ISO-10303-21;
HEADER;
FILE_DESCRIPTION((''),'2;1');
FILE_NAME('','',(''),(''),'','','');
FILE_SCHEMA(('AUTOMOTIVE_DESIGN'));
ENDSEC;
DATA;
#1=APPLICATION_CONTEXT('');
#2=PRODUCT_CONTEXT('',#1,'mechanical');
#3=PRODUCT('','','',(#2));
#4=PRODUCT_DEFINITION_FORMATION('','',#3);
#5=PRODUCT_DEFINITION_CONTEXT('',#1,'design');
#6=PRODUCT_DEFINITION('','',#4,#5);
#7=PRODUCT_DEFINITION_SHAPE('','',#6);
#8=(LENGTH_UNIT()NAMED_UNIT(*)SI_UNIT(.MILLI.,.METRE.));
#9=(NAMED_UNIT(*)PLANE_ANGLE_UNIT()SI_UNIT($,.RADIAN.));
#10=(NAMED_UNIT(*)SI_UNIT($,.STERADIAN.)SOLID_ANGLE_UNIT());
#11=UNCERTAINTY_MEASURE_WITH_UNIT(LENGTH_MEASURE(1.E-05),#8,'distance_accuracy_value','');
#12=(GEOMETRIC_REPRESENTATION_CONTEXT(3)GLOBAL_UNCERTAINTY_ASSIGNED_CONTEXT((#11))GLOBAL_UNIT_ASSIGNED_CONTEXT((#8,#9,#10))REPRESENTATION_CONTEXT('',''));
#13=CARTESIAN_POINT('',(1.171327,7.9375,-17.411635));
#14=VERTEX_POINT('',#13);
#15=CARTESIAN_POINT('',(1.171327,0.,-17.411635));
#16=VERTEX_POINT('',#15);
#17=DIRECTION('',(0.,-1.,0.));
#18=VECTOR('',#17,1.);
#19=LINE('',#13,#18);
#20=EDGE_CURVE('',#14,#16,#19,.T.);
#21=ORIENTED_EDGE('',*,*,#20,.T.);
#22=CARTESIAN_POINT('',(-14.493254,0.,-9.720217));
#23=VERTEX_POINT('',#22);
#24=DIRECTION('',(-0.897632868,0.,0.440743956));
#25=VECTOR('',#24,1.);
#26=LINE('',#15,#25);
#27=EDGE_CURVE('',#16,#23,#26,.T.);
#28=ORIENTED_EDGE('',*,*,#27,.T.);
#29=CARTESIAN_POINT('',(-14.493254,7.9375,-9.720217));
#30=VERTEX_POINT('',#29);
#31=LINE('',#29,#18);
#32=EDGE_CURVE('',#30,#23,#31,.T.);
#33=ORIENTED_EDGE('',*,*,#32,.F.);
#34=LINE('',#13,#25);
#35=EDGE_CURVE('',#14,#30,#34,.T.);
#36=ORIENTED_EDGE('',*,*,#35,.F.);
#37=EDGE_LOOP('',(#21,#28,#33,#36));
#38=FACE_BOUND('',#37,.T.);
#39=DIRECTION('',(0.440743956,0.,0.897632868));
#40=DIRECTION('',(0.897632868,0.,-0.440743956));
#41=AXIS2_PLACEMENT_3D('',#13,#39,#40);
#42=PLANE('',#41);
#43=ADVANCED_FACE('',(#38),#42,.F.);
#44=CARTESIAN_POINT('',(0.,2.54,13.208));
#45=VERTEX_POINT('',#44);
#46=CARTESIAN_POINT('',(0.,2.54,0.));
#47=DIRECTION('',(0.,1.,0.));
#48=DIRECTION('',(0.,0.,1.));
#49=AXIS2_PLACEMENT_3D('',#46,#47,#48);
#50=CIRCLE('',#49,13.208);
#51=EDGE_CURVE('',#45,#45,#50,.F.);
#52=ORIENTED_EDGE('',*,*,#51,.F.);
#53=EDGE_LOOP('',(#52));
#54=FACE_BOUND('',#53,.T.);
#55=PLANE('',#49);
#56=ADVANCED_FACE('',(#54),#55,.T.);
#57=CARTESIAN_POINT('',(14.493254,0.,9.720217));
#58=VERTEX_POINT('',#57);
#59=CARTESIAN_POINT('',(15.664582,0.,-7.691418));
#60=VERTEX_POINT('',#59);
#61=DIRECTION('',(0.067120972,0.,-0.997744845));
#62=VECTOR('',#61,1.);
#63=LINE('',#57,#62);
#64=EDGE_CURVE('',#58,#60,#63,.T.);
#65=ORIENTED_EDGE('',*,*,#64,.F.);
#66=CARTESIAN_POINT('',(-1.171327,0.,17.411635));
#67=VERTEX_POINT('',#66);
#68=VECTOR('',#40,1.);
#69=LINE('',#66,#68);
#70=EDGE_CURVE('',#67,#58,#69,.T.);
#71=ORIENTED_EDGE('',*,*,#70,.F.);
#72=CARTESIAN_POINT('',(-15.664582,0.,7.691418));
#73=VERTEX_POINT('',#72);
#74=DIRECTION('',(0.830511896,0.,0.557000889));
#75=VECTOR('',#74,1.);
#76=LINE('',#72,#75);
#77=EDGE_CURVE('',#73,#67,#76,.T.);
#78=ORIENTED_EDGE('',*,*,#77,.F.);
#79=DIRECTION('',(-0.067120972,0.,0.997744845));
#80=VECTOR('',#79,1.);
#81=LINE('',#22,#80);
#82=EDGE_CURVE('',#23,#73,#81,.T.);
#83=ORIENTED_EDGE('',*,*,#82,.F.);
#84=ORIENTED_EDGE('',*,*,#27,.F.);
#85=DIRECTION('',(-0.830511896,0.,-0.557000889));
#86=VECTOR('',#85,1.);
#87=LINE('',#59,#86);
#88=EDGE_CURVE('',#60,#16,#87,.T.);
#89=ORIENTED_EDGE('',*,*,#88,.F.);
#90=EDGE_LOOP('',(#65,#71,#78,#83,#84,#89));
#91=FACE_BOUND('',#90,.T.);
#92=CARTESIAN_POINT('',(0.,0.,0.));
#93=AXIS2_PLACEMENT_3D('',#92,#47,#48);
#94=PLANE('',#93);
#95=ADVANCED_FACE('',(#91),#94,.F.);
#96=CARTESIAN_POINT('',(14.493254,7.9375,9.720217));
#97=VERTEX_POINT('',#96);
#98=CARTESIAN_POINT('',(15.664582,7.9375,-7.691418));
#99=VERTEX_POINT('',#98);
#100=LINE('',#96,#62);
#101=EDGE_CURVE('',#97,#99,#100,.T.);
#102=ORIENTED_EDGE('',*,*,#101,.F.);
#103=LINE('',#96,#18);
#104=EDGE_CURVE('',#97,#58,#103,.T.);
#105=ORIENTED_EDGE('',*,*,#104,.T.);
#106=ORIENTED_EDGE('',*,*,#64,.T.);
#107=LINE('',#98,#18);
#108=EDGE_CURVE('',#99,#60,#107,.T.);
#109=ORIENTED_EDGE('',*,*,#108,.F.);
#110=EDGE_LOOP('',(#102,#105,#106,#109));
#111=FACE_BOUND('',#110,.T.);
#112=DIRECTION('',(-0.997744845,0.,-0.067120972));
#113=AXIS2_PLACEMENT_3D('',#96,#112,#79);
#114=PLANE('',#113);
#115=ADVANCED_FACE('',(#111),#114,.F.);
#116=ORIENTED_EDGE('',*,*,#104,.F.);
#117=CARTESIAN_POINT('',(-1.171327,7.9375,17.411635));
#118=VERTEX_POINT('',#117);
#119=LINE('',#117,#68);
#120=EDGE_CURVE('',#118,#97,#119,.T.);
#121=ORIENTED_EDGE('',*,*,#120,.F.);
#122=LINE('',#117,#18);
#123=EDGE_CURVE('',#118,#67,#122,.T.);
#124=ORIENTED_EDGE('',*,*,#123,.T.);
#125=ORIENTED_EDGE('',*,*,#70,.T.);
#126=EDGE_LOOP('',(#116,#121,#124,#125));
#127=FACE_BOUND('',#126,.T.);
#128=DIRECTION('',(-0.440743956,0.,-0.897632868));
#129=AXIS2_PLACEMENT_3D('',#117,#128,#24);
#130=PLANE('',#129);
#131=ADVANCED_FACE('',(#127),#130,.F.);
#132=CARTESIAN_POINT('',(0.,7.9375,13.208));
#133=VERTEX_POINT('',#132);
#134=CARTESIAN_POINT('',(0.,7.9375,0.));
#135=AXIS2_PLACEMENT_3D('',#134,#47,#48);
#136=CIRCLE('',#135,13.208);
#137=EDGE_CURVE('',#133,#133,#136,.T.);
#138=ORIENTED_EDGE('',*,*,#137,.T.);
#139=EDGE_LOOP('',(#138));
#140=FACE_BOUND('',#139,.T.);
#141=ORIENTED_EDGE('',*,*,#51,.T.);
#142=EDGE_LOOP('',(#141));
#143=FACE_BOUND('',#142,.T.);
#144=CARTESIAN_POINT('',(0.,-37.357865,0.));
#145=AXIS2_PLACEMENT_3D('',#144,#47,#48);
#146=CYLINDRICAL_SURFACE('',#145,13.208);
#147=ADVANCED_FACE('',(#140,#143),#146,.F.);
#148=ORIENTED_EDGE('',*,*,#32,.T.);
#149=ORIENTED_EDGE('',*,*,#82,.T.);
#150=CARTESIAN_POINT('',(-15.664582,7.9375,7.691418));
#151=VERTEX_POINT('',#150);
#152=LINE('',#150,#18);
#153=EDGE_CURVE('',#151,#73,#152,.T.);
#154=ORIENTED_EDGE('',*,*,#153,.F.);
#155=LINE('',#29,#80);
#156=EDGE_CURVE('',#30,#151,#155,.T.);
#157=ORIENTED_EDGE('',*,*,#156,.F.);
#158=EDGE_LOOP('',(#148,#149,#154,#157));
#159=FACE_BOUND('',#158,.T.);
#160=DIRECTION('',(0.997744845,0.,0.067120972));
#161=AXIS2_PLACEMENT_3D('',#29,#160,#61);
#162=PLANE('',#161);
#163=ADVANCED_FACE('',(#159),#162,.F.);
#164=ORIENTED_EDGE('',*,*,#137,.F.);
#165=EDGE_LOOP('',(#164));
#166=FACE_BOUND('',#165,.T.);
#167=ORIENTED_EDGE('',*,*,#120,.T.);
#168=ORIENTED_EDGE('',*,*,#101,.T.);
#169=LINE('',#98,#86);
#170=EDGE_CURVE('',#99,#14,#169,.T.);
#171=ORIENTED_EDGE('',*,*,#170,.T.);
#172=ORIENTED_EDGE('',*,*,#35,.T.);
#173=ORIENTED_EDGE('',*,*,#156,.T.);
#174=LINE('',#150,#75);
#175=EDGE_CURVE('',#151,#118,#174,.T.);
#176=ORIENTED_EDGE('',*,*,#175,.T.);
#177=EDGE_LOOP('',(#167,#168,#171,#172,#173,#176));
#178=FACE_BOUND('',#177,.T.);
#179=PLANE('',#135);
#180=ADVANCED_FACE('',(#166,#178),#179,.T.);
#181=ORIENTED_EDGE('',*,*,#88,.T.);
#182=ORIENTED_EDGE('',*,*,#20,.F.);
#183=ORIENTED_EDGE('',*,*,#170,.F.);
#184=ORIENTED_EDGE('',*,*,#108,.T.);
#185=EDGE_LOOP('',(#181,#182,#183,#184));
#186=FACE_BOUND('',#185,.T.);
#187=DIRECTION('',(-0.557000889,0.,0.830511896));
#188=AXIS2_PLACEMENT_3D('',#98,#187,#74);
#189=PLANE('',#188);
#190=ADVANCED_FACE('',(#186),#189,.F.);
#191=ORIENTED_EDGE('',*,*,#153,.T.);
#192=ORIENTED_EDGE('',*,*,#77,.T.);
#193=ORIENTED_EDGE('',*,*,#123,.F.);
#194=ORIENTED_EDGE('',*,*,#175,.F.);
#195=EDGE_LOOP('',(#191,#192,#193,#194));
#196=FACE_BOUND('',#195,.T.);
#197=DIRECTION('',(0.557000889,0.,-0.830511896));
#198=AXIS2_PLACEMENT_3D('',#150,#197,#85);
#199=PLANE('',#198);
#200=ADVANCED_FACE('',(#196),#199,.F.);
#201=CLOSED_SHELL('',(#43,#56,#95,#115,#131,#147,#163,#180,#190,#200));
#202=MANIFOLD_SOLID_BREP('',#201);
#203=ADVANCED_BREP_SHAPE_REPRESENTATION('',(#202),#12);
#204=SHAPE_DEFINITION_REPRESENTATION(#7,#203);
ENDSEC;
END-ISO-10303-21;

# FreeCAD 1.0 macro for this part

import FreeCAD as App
import Part
import Sketcher
Q = App.Units.Quantity


def add_polygon(sketch, points):
    """Adds a closed chain of lines whose ends are joined by coincident constraints."""
    first, n = sketch.GeometryCount, len(points)
    for a, b in zip(points, points[1:] + points[:1]):
        sketch.addGeometry(Part.LineSegment(App.Vector(*a, 0), App.Vector(*b, 0)), False)
    for i in range(n):
        sketch.addConstraint(Sketcher.Constraint("Coincident", first + i, 2, first + (i + 1) % n, 1))

doc = App.newDocument("Part")
params = doc.addObject("Spreadsheet::Sheet", "Params")
for row, (alias, value) in enumerate([
    ("pad1_length", "0.3125 in"),
    ("sketch2_diameter", "1.04 in"),
    ("pocket1_length", "0.2125 in"),
], start=1):
    params.set(f"A{row}", alias)
    params.set(f"B{row}", "=" + value)
    params.setAlias(f"B{row}", alias)

body = doc.addObject("PartDesign::Body", "Body")

# Sketch on XZ plane
sketch1 = body.newObject("Sketcher::SketchObject", "Sketch")
sketch1.AttachmentSupport = (doc.getObject("XZ_Plane"), [""])
sketch1.MapMode = "FlatFace"
add_polygon(sketch1, [(14, 10), (16, -8), (1, -17), (-14, -10), (-16, 8), (-1, 17)])  # lines 0-5
sketch1.addConstraint([
    Sketcher.Constraint("Symmetric", 0, 2, 3, 2, -1, 1),
    Sketcher.Constraint("Symmetric", 1, 2, 4, 2, -1, 1),
    Sketcher.Constraint("Symmetric", 2, 2, 5, 2, -1, 1),
    Sketcher.Constraint("Equal", 0, 1),
    Sketcher.Constraint("Equal", 1, 2),
    Sketcher.Constraint("DistanceY", 2, 2, 0, 2, 2.028798),
    Sketcher.Constraint("Distance", 0, 17.450989),
    Sketcher.Constraint("DistanceX", -1, 1, 0, 2, 15.664582),
    Sketcher.Constraint("DistanceY", 0, 2, -1, 1, 7.691418),
])
pad1 = body.newObject("PartDesign::Pad", "Pad")
pad1.Profile = sketch1
pad1.setExpression("Length", "Params.pad1_length")
pad1.Reversed = True

# Sketch on XZ plane
sketch2 = body.newObject("Sketcher::SketchObject", "Sketch001")
sketch2.AttachmentSupport = (doc.getObject("XZ_Plane"), [""])
sketch2.MapMode = "FlatFace"
sketch2.AttachmentOffset = App.Placement(App.Vector(0, 0, -0.3125 * 25.4), App.Rotation())
sketch2.addGeometry(Part.Circle(App.Vector(0, 0, 0), App.Vector(0, 0, 1), 13), False)
sketch2.addConstraint([
    Sketcher.Constraint("Coincident", 0, 3, -1, 1),
    Sketcher.Constraint("Diameter", 0, Q("1.04 in")),
])
sketch2.setExpression("Constraints[1]", "Params.sketch2_diameter")
pocket1 = body.newObject("PartDesign::Pocket", "Pocket")
pocket1.Profile = sketch2
pocket1.setExpression("Length", "Params.pocket1_length")
pocket1.Reversed = True

doc.recompute()
